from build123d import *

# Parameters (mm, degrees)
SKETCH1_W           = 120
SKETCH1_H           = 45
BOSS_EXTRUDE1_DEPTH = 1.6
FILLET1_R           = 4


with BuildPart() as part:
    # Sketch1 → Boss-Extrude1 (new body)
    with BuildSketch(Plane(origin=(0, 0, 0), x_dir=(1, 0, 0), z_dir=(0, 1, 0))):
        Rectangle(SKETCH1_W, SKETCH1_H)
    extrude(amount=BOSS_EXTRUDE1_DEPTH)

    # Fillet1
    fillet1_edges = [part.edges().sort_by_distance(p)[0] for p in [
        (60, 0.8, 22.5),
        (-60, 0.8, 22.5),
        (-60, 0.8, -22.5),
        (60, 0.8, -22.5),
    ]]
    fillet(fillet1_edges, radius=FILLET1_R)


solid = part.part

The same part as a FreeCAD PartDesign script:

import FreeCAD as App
import Part
import Sketcher
from FreeCAD import Vector


def edges_at(feature, points):
    """Names of the edges that pass closest to the given points."""
    edges = feature.Shape.Edges
    near = lambda p: min(range(len(edges)), key=lambda i: edges[i].distToShape(Part.Vertex(*p))[0])
    return sorted({f"Edge{near(p) + 1}" for p in points})

doc = App.newDocument("Part")
body = doc.addObject("PartDesign::Body", "Body")

sketch1 = doc.addObject("Sketcher::SketchObject", "Sketch")
body.addObject(sketch1)
sketch1.AttachmentSupport = (doc.XZ_Plane, [""])
sketch1.MapMode = "FlatFace"
sketch1.addGeometry([
    Part.LineSegment(Vector(-60, -22.5, 0), Vector(-60, 22.5, 0)),
    Part.LineSegment(Vector(-60, 22.5, 0), Vector(60, 22.5, 0)),
    Part.LineSegment(Vector(60, 22.5, 0), Vector(60, -22.5, 0)),
    Part.LineSegment(Vector(60, -22.5, 0), Vector(-60, -22.5, 0)),
], False)
sketch1.addConstraint([
    Sketcher.Constraint("Coincident", 0, 2, 1, 1),
    Sketcher.Constraint("Coincident", 1, 2, 2, 1),
    Sketcher.Constraint("Coincident", 2, 2, 3, 1),
    Sketcher.Constraint("Coincident", 3, 2, 0, 1),
    Sketcher.Constraint("Vertical", 0),
    Sketcher.Constraint("Horizontal", 1),
    Sketcher.Constraint("Vertical", 2),
    Sketcher.Constraint("Horizontal", 3),
    Sketcher.Constraint("Symmetric", 0, 2, 2, 2, -1, 1),
    Sketcher.Constraint("DistanceX", 1, 1, 1, 2, 120.0),
    Sketcher.Constraint("DistanceY", 0, 1, 0, 2, 45.0),
])
pad1 = doc.addObject("PartDesign::Pad", "Pad")
body.addObject(pad1)
pad1.Profile = sketch1
pad1.Length = 1.6
pad1.Reversed = True
doc.recompute()

fillet = doc.addObject("PartDesign::Fillet", "Fillet")
body.addObject(fillet)
fillet.Base = (pad1, edges_at(pad1, [
    (60, 0.8, 22.5),
    (-60, 0.8, 22.5),
    (-60, 0.8, -22.5),
    (60, 0.8, -22.5),
]))
fillet.Radius = 4

doc.recompute()
